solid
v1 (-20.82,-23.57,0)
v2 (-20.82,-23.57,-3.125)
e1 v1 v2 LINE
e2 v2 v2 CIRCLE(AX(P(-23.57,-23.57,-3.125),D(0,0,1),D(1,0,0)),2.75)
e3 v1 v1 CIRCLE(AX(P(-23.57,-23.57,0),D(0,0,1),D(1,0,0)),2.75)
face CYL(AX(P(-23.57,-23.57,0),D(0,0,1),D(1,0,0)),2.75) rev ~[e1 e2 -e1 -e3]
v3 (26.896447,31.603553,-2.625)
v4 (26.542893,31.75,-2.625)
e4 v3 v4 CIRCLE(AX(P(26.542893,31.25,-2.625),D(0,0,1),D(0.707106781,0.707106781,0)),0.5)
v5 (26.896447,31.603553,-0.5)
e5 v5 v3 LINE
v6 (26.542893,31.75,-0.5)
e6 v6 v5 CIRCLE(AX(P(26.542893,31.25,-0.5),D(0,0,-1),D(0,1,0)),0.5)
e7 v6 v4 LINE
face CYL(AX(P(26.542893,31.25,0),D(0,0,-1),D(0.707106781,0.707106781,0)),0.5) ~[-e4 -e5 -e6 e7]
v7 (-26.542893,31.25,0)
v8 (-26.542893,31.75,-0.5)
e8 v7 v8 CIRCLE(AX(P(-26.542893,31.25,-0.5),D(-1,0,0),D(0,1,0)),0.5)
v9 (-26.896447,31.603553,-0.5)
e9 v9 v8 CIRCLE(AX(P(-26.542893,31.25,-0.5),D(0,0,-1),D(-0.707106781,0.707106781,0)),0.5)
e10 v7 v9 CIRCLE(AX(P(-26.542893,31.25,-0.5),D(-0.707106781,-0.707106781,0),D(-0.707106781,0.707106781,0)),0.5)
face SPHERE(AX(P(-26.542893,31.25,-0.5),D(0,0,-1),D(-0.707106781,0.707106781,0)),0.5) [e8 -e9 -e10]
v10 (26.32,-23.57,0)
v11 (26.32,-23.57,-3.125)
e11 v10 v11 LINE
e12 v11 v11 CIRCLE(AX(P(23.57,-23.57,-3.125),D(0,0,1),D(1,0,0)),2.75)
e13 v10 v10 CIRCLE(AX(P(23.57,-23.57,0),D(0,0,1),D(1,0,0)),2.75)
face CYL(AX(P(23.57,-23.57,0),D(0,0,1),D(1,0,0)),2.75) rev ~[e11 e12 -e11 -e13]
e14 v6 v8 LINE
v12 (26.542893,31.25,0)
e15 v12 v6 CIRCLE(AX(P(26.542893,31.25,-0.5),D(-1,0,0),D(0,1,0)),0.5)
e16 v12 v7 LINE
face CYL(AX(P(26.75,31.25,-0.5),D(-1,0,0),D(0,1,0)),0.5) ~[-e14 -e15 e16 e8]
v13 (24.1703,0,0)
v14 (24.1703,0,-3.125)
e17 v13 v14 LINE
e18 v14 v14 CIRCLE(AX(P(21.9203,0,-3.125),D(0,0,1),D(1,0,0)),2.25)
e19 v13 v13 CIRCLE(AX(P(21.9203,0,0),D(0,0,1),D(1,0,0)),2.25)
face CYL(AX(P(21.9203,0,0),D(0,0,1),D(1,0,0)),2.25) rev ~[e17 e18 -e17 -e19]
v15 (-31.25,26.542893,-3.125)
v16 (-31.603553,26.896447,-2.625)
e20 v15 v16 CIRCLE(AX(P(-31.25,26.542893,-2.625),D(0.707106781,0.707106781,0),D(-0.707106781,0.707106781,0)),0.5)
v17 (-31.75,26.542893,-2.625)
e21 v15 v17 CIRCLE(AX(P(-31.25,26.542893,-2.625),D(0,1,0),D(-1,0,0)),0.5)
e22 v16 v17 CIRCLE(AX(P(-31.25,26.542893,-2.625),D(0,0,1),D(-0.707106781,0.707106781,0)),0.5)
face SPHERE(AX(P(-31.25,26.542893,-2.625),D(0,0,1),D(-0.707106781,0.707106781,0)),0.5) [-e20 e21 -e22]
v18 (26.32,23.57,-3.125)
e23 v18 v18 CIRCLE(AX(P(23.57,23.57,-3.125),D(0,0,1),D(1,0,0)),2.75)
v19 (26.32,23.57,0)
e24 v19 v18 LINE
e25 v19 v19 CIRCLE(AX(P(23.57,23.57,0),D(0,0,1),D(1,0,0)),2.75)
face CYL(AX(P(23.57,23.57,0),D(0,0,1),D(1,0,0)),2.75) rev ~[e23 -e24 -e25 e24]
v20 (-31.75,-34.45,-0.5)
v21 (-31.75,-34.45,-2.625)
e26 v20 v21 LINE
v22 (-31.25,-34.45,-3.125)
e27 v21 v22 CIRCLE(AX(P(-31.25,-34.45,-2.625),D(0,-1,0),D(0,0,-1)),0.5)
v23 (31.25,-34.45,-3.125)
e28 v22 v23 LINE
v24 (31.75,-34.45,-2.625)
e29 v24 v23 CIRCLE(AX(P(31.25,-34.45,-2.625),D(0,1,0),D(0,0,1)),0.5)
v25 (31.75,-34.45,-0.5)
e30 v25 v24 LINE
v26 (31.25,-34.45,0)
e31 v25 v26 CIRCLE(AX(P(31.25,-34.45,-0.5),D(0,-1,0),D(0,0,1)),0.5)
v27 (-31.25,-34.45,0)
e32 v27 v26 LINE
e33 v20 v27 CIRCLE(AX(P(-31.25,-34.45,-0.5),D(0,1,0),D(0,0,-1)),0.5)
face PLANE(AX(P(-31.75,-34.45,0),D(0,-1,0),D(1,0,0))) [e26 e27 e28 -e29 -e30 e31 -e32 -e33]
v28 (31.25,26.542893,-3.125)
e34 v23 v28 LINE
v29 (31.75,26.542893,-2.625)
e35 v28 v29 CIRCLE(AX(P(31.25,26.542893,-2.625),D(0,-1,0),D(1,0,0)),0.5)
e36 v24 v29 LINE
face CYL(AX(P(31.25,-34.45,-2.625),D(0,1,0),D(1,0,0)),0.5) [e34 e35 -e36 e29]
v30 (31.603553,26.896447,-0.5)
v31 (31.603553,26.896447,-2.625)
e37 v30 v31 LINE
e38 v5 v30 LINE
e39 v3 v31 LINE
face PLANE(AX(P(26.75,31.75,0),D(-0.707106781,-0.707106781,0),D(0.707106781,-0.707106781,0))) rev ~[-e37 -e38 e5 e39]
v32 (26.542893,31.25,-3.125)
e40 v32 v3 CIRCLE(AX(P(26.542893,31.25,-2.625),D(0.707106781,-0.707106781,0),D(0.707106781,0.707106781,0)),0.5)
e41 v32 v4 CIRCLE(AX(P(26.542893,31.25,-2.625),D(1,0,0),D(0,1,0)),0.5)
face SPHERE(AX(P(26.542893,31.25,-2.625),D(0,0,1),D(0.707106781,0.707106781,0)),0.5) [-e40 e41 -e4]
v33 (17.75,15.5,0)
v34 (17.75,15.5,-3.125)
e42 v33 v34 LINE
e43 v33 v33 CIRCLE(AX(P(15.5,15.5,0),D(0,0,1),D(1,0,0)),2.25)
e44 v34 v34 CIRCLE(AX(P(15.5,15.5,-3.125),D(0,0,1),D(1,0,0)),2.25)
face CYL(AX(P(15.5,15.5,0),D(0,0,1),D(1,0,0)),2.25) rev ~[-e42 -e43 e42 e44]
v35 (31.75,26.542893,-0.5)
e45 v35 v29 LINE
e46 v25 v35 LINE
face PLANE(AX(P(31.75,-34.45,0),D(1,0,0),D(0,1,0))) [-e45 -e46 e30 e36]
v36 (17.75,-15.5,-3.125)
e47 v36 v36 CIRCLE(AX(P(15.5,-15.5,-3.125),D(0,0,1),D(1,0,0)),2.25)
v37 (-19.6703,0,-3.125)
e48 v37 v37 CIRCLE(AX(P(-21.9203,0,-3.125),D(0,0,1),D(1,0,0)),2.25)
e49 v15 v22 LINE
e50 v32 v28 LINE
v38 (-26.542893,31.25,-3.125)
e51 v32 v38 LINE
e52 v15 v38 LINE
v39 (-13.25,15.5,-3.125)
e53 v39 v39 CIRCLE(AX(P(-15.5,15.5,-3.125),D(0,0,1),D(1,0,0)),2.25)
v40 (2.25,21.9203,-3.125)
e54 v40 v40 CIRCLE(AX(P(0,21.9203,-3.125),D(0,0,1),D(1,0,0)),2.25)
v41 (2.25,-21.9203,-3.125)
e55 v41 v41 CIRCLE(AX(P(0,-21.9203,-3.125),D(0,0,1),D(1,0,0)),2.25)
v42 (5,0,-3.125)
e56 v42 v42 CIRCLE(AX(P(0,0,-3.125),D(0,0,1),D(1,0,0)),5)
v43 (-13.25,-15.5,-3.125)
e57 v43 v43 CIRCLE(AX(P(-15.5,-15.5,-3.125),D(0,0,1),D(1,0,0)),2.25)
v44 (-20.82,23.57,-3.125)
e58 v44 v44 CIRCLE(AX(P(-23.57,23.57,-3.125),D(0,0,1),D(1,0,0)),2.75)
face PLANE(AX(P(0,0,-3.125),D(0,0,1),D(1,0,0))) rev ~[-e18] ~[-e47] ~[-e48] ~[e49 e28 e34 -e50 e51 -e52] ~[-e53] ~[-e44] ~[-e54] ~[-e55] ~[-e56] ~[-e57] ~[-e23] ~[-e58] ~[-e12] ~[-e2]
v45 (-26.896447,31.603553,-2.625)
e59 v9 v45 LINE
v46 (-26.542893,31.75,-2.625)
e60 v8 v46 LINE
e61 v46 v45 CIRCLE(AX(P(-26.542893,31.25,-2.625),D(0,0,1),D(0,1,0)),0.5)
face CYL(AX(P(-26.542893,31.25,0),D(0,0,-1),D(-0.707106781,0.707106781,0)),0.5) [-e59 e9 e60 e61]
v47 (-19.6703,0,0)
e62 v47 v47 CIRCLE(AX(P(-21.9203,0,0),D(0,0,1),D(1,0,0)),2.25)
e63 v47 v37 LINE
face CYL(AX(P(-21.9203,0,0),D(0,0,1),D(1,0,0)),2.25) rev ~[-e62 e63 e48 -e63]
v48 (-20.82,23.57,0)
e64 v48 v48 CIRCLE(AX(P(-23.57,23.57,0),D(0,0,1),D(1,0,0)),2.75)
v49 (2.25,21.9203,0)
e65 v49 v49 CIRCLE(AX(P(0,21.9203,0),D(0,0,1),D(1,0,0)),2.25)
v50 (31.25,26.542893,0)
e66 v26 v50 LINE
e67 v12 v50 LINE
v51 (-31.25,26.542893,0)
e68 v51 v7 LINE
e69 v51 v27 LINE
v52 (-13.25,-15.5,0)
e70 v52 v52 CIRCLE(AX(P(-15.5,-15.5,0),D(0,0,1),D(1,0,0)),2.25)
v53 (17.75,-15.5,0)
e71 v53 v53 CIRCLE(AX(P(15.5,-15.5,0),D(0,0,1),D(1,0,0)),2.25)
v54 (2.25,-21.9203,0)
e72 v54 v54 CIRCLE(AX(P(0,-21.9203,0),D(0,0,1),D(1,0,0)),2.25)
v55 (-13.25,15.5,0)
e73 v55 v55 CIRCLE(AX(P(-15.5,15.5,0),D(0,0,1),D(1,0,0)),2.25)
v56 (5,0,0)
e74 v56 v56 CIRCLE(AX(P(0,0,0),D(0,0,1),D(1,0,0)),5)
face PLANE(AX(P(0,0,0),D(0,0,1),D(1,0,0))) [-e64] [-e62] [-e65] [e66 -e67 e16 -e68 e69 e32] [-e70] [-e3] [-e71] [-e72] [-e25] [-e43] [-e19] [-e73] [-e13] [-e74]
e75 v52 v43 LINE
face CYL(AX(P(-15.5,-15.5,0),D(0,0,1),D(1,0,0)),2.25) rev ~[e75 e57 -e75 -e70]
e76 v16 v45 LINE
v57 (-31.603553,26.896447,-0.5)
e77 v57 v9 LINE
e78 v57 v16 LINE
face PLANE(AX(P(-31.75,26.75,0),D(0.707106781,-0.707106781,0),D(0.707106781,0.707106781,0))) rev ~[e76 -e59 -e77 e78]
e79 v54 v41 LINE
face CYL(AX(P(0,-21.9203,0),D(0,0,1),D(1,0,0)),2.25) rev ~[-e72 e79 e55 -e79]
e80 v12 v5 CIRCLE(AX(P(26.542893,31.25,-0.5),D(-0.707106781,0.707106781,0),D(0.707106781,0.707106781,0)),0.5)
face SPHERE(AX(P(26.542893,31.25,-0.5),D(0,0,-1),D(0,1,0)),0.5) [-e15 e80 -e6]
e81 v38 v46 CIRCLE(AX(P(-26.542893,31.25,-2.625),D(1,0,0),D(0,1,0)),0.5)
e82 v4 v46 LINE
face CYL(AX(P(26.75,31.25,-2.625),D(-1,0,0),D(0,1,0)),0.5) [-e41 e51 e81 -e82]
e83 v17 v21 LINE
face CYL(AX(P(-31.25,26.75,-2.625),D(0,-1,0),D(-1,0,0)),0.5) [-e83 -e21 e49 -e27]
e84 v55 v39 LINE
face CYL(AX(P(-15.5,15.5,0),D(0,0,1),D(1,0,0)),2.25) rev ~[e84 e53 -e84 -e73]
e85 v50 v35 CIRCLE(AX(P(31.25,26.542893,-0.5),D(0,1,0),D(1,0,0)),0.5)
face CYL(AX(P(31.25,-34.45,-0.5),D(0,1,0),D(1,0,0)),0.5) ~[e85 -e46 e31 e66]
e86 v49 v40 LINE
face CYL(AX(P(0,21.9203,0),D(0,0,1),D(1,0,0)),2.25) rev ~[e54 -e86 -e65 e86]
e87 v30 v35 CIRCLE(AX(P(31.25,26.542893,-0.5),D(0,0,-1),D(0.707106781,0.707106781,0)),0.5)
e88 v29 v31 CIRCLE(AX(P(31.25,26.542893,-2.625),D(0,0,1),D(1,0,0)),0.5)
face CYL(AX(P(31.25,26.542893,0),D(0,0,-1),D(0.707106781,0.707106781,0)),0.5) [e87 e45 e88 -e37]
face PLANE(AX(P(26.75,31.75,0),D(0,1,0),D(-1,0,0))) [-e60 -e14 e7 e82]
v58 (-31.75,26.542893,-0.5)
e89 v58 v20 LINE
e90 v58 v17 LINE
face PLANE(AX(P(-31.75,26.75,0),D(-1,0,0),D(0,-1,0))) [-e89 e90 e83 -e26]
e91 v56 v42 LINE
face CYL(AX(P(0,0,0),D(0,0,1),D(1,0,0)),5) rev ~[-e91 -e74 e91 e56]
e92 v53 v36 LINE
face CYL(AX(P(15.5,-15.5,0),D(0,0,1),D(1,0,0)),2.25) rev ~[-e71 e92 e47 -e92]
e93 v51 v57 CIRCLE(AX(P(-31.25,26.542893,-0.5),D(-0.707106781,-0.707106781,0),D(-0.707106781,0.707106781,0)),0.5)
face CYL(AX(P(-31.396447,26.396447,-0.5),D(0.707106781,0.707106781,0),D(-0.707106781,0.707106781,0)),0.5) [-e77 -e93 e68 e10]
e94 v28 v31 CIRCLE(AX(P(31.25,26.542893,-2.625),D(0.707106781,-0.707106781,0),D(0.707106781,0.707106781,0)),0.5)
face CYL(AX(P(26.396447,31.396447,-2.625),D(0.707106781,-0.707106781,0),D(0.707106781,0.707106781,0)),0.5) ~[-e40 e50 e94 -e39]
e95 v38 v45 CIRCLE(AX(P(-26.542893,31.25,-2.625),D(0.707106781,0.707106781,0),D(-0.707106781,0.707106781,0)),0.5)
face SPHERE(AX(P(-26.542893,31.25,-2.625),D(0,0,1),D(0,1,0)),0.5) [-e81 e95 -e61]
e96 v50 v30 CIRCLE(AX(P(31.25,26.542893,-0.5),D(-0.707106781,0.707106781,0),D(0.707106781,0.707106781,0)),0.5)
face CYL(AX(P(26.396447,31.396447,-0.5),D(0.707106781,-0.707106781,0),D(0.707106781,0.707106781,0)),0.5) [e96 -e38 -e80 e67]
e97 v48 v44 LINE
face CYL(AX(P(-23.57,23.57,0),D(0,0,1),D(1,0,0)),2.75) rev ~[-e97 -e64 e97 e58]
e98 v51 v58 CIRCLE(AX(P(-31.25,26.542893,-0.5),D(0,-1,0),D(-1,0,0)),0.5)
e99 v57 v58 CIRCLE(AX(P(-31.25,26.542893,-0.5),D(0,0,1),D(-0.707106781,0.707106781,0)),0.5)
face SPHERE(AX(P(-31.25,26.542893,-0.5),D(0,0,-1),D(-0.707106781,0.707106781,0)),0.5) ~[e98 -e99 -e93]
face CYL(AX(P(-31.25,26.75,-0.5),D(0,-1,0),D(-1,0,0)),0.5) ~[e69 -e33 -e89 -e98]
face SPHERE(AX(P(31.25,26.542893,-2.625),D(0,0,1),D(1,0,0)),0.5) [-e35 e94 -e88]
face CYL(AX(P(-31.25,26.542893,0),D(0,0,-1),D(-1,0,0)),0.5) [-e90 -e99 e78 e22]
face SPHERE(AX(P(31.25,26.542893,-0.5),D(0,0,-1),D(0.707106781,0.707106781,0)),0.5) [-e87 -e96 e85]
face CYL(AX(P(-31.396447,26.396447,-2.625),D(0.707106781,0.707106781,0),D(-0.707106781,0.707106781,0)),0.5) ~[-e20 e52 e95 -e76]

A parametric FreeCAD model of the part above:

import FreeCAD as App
import Part
import Sketcher
from FreeCAD import Vector
Q = App.Units.Quantity


def edges_at(feature, points):
    """Names of the edges that pass closest to the given points."""
    edges = feature.Shape.Edges
    near = lambda p: min(range(len(edges)), key=lambda i: edges[i].distToShape(Part.Vertex(*p))[0])
    return sorted({f"Edge{near(p) + 1}" for p in points})


def add_polygon(sketch, points):
    """Adds a closed chain of lines whose ends are joined by coincident constraints."""
    first, n = sketch.GeometryCount, len(points)
    for a, b in zip(points, points[1:] + points[:1]):
        sketch.addGeometry(Part.LineSegment(App.Vector(*a, 0), App.Vector(*b, 0)), False)
    for i in range(n):
        sketch.addConstraint(Sketcher.Constraint("Coincident", first + i, 2, first + (i + 1) % n, 1))

doc = App.newDocument("Part")
body = doc.addObject("PartDesign::Body", "Body")

sketch1 = body.newObject("Sketcher::SketchObject", "Sketch")
sketch1.AttachmentSupport = (doc.getObject("XY_Plane"), [""])
sketch1.MapMode = "FlatFace"
add_polygon(sketch1, [(31.8, 26.8), (26.8, 31.8), (-26.8, 31.8), (-31.8, 26.8), (-31.8, -34.5), (31.8, -34.5)])
sketch1.addGeometry(Part.Circle(Vector(-23.6, -23.6, 0), Vector(0, 0, 1), 2.8), False)
sketch1.addGeometry(Part.Circle(Vector(-15.5, -15.5, 0), Vector(0, 0, 1), 2.2), False)
sketch1.addGeometry(Part.Circle(Vector(0, -21.9, 0), Vector(0, 0, 1), 2.2), False)
sketch1.addGeometry(Part.Circle(Vector(23.6, -23.6, 0), Vector(0, 0, 1), 2.8), False)
sketch1.addGeometry(Part.Circle(Vector(15.5, -15.5, 0), Vector(0, 0, 1), 2.2), False)
sketch1.addGeometry(Part.Circle(Vector(-21.9, 0, 0), Vector(0, 0, 1), 2.2), False)
sketch1.addGeometry(Part.Circle(Vector(-23.6, 23.6, 0), Vector(0, 0, 1), 2.8), False)
sketch1.addGeometry(Part.Circle(Vector(-15.5, 15.5, 0), Vector(0, 0, 1), 2.2), False)
sketch1.addGeometry(Part.Circle(Vector(0, 0, 0), Vector(0, 0, 1), 5), False)
sketch1.addGeometry(Part.Circle(Vector(21.9, 0, 0), Vector(0, 0, 1), 2.2), False)
sketch1.addGeometry(Part.Circle(Vector(0, 21.9, 0), Vector(0, 0, 1), 2.2), False)
sketch1.addGeometry(Part.Circle(Vector(15.5, 15.5, 0), Vector(0, 0, 1), 2.2), False)
sketch1.addGeometry(Part.Circle(Vector(23.6, 23.6, 0), Vector(0, 0, 1), 2.8), False)
sketch1.addConstraint(Sketcher.Constraint("Horizontal", 1))
sketch1.addConstraint(Sketcher.Constraint("Vertical", 3))
sketch1.addConstraint(Sketcher.Constraint("Horizontal", 4))
sketch1.addConstraint(Sketcher.Constraint("Vertical", 5))
sketch1.addConstraint(Sketcher.Constraint("Coincident", 14, 3, -1, 1))
sketch1.addConstraint(Sketcher.Constraint("Equal", 7, 8))
sketch1.addConstraint(Sketcher.Constraint("Equal", 6, 9))
sketch1.addConstraint(Sketcher.Constraint("Equal", 8, 10))
sketch1.addConstraint(Sketcher.Constraint("Equal", 10, 11))
sketch1.addConstraint(Sketcher.Constraint("Equal", 9, 12))
sketch1.addConstraint(Sketcher.Constraint("Equal", 11, 13))
sketch1.addConstraint(Sketcher.Constraint("Equal", 13, 15))
sketch1.addConstraint(Sketcher.Constraint("Equal", 15, 16))
sketch1.addConstraint(Sketcher.Constraint("Equal", 16, 17))
sketch1.addConstraint(Sketcher.Constraint("Equal", 12, 18))
sketch1.addConstraint(Sketcher.Constraint("Symmetric", 9, 3, 12, 3, -1, 1))
sketch1.addConstraint(Sketcher.Constraint("Symmetric", 10, 3, 13, 3, -1, 1))
sketch1.addConstraint(Sketcher.Constraint("Symmetric", 11, 3, 15, 3, -1, 1))
sketch1.addConstraint(Sketcher.Constraint("Symmetric", 8, 3, 16, 3, -1, 1))
sketch1.addConstraint(Sketcher.Constraint("Symmetric", 7, 3, 17, 3, -1, 1))
sketch1.addConstraint(Sketcher.Constraint("Symmetric", 6, 3, 18, 3, -1, 1))
sketch1.addConstraint(Sketcher.Constraint("Symmetric", 6, 3, 9, 3, -2))
sketch1.addConstraint(Sketcher.Constraint("Symmetric", 7, 3, 10, 3, -2))
sketch1.addConstraint(Sketcher.Constraint("Symmetric", 2, 2, 5, 2, -2))
sketch1.addConstraint(Sketcher.Constraint("PointOnObject", 8, 3, -2))
sketch1.addConstraint(Sketcher.Constraint("PointOnObject", 11, 3, -1))
sketch1.addConstraint(Sketcher.Constraint("Perpendicular", 0, 2))
sketch1.addConstraint(Sketcher.Constraint("Equal", 0, 2))
sketch1.addConstraint(Sketcher.Constraint("Diameter", 14, Q("10 mm")))
sketch1.addConstraint(Sketcher.Constraint("Diameter", 6, Q("5.5 mm")))
sketch1.addConstraint(Sketcher.Constraint("Diameter", 7, Q("4.5 mm")))
sketch1.addConstraint(Sketcher.Constraint("DistanceX", 4, 1, 4, 2, Q("63.5 mm")))
sketch1.addConstraint(Sketcher.Constraint("DistanceX", 7, 3, 10, 3, Q("31 mm")))
sketch1.addConstraint(Sketcher.Constraint("DistanceY", 7, 3, 13, 3, Q("31 mm")))
sketch1.addConstraint(Sketcher.Constraint("DistanceX", 2, 2, 1, 2, Q("5 mm")))
sketch1.addConstraint(Sketcher.Constraint("DistanceY", -1, 1, 0, 2, Q("31.75 mm")))
sketch1.addConstraint(Sketcher.Constraint("DistanceX", 6, 3, 9, 3, Q("47.14 mm")))
sketch1.addConstraint(Sketcher.Constraint("DistanceY", 6, 3, 12, 3, Q("47.14 mm")))
sketch1.addConstraint(Sketcher.Constraint("DistanceY", 3, 2, 3, 1, Q("61.2 mm")))
sketch1.addConstraint(Sketcher.Constraint("DistanceY", 8, 3, -1, 1, Q("21.9203 mm")))
sketch1.addConstraint(Sketcher.Constraint("DistanceX", 11, 3, -1, 1, Q("21.9203 mm")))
pad1 = body.newObject("PartDesign::Pad", "Pad")
pad1.Profile = sketch1
pad1.Length = 3.125
pad1.Reversed = True
doc.recompute()

fillet = body.newObject("PartDesign::Fillet", "Fillet")
fillet.Base = (pad1, edges_at(pad1, [
    (-31.75, 26.75, -1.562),
    (-29.25, 29.25, -3.125),
    (-26.75, 31.75, -1.562),
    (0, 31.75, -3.125),
    (26.75, 31.75, -1.562),
    (29.25, 29.25, -3.125),
    (31.75, 26.75, -1.562),
    (-31.75, -3.85, -3.125),
    (31.75, -3.85, -3.125),
    (-29.25, 29.25, 0),
    (-31.75, -3.85, 0),
    (0, 31.75, 0),
    (29.25, 29.25, 0),
    (31.75, -3.85, 0),
]))
fillet.Radius = 0.5

doc.recompute()
